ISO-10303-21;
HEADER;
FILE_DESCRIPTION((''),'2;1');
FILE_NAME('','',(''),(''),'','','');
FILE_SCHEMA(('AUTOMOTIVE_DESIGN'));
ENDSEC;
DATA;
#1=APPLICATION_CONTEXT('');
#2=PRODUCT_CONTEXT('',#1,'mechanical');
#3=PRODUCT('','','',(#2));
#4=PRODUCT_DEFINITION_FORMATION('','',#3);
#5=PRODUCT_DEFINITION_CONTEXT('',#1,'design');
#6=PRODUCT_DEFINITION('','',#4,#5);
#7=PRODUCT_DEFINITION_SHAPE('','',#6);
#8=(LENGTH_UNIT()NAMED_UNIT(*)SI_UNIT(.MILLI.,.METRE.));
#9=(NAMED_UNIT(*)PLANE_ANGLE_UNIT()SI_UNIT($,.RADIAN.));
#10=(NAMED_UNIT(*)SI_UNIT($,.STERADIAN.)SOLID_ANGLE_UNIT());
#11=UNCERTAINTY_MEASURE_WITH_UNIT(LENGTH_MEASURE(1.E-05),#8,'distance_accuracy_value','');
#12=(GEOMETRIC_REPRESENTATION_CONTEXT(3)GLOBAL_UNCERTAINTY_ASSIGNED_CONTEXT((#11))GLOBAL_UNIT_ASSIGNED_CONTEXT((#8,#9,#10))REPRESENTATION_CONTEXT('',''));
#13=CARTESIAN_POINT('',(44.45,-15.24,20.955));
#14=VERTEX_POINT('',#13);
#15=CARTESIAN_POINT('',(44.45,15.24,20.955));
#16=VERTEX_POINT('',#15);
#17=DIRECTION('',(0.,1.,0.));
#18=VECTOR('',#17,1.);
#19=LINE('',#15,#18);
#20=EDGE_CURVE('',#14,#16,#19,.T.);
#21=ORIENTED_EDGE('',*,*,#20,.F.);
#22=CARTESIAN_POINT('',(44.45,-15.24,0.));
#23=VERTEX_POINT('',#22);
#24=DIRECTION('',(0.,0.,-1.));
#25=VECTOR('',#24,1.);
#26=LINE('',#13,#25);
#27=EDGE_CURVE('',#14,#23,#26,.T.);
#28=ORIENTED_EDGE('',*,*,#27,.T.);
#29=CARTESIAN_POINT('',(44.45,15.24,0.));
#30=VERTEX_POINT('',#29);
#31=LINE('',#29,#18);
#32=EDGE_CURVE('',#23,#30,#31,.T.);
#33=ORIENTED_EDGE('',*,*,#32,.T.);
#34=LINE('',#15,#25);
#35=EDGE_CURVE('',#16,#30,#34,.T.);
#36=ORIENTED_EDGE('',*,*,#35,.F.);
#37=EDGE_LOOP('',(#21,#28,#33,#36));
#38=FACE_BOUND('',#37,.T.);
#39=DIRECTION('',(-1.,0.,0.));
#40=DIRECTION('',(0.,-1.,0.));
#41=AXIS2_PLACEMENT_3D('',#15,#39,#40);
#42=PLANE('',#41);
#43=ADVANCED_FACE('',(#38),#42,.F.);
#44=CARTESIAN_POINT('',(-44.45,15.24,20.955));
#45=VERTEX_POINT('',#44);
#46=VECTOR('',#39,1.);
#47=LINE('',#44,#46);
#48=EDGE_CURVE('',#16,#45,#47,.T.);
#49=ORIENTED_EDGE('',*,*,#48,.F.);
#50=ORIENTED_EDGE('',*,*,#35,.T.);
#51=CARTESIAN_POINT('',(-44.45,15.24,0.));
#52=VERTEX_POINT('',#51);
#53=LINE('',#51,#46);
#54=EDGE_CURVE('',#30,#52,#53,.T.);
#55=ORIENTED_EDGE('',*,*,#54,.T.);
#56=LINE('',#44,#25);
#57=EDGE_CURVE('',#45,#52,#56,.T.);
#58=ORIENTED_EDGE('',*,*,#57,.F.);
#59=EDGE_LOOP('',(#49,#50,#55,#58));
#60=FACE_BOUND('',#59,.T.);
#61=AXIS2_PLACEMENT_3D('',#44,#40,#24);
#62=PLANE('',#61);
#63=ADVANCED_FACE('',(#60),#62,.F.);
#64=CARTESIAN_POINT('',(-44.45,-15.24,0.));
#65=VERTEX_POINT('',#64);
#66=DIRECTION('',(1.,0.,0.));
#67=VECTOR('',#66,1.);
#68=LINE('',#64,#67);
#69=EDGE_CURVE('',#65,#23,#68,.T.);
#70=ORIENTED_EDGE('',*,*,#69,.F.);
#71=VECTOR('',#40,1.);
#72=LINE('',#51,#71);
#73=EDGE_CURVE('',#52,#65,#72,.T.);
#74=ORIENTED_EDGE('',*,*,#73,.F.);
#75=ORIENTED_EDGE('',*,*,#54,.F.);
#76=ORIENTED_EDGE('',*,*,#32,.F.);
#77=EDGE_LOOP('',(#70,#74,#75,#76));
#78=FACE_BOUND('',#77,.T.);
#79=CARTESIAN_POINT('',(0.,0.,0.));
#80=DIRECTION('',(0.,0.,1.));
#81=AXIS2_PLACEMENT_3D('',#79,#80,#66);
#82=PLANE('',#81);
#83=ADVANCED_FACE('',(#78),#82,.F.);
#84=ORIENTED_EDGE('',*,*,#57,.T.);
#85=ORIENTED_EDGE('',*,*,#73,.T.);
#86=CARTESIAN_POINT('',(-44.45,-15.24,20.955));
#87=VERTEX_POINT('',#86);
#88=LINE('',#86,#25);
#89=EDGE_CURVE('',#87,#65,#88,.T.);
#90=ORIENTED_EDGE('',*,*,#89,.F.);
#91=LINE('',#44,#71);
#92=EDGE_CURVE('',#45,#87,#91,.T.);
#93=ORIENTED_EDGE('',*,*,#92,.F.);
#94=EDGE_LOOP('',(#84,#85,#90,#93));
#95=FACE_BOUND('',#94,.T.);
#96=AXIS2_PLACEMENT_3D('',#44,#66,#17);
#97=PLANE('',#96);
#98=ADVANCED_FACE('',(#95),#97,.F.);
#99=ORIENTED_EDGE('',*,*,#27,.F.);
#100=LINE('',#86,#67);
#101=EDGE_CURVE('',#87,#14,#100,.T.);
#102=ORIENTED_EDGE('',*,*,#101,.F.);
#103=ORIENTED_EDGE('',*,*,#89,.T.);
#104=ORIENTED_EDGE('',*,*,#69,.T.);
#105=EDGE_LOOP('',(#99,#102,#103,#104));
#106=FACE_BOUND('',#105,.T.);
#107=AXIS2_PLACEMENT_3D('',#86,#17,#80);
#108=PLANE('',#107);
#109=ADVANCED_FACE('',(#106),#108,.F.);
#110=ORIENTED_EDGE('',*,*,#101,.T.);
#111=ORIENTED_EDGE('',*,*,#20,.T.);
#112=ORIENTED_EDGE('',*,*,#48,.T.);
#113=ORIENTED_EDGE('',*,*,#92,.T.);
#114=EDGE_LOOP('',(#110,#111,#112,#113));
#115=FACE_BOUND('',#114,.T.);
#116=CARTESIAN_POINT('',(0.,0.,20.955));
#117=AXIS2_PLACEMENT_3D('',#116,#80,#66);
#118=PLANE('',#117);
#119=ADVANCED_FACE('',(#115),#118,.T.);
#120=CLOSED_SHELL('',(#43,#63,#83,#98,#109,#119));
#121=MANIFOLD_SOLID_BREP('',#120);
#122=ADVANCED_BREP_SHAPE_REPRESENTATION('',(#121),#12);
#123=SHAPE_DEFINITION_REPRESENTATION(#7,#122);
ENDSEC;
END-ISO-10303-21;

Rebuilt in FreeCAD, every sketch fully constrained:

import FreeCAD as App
import Part
import Sketcher
Q = App.Units.Quantity


def add_polygon(sketch, points):
    """Adds a closed chain of lines whose ends are joined by coincident constraints."""
    first, n = sketch.GeometryCount, len(points)
    for a, b in zip(points, points[1:] + points[:1]):
        sketch.addGeometry(Part.LineSegment(App.Vector(*a, 0), App.Vector(*b, 0)), False)
    for i in range(n):
        sketch.addConstraint(Sketcher.Constraint("Coincident", first + i, 2, first + (i + 1) % n, 1))

doc = App.newDocument("Part")
body = doc.addObject("PartDesign::Body", "Body")

# Sketch on XY plane
sketch1 = body.newObject("Sketcher::SketchObject", "Sketch")
sketch1.AttachmentSupport = (doc.getObject("XY_Plane"), [""])
sketch1.MapMode = "FlatFace"
add_polygon(sketch1, [(-44, 15), (-44, -15), (44, -15), (44, 15)])  # lines 0-3
sketch1.addConstraint([
    Sketcher.Constraint("Vertical", 0),
    Sketcher.Constraint("Horizontal", 1),
    Sketcher.Constraint("Vertical", 2),
    Sketcher.Constraint("Horizontal", 3),
    Sketcher.Constraint("Symmetric", 0, 2, 2, 2, -1, 1),
    Sketcher.Constraint("DistanceX", 1, 1, 1, 2, Q("3.5 in")),
    Sketcher.Constraint("DistanceY", 0, 2, 0, 1, Q("1.2 in")),
])
pad1 = body.newObject("PartDesign::Pad", "Pad")
pad1.Profile = sketch1
pad1.Length = Q("0.825 in")

doc.recompute()
